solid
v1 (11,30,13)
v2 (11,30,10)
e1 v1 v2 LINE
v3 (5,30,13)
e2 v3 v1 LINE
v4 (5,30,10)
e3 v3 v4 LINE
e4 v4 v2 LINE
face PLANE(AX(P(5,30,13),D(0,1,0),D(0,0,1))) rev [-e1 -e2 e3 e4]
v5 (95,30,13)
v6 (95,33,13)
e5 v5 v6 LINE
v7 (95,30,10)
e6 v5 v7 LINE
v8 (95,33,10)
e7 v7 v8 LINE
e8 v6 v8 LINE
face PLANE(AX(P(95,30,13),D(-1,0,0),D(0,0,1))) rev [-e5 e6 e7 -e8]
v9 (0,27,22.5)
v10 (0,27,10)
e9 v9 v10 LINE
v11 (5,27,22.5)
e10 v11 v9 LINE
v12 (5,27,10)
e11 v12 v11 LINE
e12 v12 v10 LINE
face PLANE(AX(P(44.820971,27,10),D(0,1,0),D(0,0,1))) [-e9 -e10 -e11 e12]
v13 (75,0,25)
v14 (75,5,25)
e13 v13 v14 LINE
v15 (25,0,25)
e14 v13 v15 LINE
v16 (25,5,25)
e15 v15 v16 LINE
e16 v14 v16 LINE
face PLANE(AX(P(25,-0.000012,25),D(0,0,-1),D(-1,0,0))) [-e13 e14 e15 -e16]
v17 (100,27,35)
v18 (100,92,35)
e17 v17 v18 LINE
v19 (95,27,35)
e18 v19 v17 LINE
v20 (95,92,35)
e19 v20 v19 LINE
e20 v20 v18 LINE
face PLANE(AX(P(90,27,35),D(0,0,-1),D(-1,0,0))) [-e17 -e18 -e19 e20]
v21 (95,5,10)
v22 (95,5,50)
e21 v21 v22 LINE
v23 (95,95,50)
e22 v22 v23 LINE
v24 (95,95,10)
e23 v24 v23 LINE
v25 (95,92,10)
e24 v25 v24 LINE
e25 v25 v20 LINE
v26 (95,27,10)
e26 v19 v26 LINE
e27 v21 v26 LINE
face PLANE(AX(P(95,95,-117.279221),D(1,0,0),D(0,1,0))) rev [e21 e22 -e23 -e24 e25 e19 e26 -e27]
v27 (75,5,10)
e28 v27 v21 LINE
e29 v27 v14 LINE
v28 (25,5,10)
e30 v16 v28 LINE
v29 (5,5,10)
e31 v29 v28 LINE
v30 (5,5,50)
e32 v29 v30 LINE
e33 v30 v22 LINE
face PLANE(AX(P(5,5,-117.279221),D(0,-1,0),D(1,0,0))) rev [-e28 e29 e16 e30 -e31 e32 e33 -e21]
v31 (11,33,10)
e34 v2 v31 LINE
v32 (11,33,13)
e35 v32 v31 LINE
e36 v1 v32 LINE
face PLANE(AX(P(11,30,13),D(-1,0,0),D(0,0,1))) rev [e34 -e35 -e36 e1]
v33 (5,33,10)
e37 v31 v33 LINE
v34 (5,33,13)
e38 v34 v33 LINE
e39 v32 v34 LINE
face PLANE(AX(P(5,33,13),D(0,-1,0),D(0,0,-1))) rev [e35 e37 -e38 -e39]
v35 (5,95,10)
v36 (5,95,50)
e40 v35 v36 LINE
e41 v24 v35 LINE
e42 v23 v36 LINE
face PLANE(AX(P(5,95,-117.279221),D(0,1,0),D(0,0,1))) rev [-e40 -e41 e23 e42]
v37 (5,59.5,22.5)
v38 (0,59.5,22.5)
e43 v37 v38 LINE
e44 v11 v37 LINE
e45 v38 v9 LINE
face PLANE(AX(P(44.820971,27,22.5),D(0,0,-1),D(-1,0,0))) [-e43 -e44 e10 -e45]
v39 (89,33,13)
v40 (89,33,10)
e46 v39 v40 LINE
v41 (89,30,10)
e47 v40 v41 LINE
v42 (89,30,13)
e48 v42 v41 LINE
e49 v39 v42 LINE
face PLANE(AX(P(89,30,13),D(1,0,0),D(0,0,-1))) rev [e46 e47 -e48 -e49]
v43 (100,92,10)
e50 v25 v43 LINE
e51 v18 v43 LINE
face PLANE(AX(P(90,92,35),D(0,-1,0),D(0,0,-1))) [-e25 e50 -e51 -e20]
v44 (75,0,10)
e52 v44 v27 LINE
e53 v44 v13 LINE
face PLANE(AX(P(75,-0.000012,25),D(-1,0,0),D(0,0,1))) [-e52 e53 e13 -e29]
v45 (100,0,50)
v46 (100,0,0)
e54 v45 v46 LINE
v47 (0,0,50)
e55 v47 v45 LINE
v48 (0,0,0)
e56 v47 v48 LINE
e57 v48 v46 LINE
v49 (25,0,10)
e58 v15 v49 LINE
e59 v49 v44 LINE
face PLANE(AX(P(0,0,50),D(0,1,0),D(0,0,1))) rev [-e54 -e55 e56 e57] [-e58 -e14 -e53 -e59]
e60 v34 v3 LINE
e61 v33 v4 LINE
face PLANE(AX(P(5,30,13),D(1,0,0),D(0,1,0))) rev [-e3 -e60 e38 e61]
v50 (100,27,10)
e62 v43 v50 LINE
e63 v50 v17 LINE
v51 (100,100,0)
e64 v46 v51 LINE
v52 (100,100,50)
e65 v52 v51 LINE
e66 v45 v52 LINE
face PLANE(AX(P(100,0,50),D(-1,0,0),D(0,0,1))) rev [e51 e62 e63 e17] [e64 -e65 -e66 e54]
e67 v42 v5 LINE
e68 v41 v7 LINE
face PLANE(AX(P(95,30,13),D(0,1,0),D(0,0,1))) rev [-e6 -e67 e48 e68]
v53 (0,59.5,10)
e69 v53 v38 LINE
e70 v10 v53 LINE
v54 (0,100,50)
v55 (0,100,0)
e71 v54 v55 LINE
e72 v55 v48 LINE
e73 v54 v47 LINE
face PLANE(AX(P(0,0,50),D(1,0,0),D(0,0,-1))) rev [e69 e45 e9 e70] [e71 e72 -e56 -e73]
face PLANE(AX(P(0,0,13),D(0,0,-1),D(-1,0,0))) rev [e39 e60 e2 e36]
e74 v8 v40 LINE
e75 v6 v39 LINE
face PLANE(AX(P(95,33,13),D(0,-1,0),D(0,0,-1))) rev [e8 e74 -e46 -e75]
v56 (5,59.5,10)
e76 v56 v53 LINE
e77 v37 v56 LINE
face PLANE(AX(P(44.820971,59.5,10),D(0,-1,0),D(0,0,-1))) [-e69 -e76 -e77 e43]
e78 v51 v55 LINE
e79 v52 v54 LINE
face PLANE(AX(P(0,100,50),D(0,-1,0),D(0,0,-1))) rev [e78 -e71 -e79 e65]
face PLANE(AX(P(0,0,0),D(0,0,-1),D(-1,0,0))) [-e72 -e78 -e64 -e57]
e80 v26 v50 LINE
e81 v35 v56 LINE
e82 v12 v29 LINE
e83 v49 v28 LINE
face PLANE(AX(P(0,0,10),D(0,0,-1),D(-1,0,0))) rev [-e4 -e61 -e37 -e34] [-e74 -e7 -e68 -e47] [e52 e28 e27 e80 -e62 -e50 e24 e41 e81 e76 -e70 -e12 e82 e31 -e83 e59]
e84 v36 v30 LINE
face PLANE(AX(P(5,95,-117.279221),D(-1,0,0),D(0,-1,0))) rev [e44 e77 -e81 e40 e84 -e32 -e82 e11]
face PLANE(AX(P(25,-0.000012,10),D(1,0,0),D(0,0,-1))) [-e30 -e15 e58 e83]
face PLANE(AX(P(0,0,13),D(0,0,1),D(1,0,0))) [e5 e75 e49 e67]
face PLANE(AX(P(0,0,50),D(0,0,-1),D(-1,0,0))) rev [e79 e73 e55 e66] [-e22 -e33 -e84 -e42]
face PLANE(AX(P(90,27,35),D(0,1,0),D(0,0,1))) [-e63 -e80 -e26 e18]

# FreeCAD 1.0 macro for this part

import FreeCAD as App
import Part
import Sketcher
Q = App.Units.Quantity


def faces_at(feature, points):
    """Names of the faces that lie closest to the given points."""
    faces = feature.Shape.Faces
    near = lambda p: min(range(len(faces)), key=lambda i: faces[i].distToShape(Part.Vertex(*p))[0])
    return sorted({f"Face{near(p) + 1}" for p in points})


def add_polygon(sketch, points):
    """Adds a closed chain of lines whose ends are joined by coincident constraints."""
    first, n = sketch.GeometryCount, len(points)
    for a, b in zip(points, points[1:] + points[:1]):
        sketch.addGeometry(Part.LineSegment(App.Vector(*a, 0), App.Vector(*b, 0)), False)
    for i in range(n):
        sketch.addConstraint(Sketcher.Constraint("Coincident", first + i, 2, first + (i + 1) % n, 1))

doc = App.newDocument("Part")
body = doc.addObject("PartDesign::Body", "Body")

# Sketch on XY plane
sketch1 = body.newObject("Sketcher::SketchObject", "Sketch")
sketch1.AttachmentSupport = (doc.getObject("XY_Plane"), [""])
sketch1.MapMode = "FlatFace"
add_polygon(sketch1, [(0, 100), (0, 0), (100, 0), (100, 100)])  # lines 0-3
sketch1.addConstraint([
    Sketcher.Constraint("Vertical", 0),
    Sketcher.Constraint("Horizontal", 1),
    Sketcher.Constraint("Vertical", 2),
    Sketcher.Constraint("Horizontal", 3),
    Sketcher.Constraint("Coincident", 0, 2, -1, 1),
    Sketcher.Constraint("Equal", 3, 0),
    Sketcher.Constraint("DistanceX", 1, 1, 1, 2, Q("100 mm")),
])
pad1 = body.newObject("PartDesign::Pad", "Pad")
pad1.Profile = sketch1
pad1.Length = 50
doc.recompute()

thickness = body.newObject("PartDesign::Thickness", "Thickness")
thickness.Base = (pad1, faces_at(pad1, [(50, 50, 50)]))
thickness.Value = 10
thickness.Reversed = True
thickness.Join = "Intersection"

# Sketch on XZ plane
sketch2 = body.newObject("Sketcher::SketchObject", "Sketch001")
sketch2.AttachmentSupport = (doc.getObject("XZ_Plane"), [""])
sketch2.MapMode = "FlatFace"
add_polygon(sketch2, [(25, 25), (25, 10), (75, 10), (75, 25)])  # lines 0-3
sketch2.addConstraint([
    Sketcher.Constraint("Vertical", 0),
    Sketcher.Constraint("Horizontal", 1),
    Sketcher.Constraint("Vertical", 2),
    Sketcher.Constraint("Horizontal", 3),
    Sketcher.Constraint("DistanceX", 1, 1, 1, 2, Q("50 mm")),
    Sketcher.Constraint("DistanceY", 0, 2, 0, 1, Q("15 mm")),
    Sketcher.Constraint("DistanceX", -1, 1, 0, 2, Q("25 mm")),
    Sketcher.Constraint("DistanceY", -1, 1, 0, 2, Q("10 mm")),
])
pocket1 = body.newObject("PartDesign::Pocket", "Pocket")
pocket1.Profile = sketch2
pocket1.Type = "TwoLengths"
pocket1.Length = 151
pocket1.Length2 = 10
pocket1.Reversed = True

# Sketch on YZ plane
sketch3 = body.newObject("Sketcher::SketchObject", "Sketch002")
sketch3.AttachmentSupport = (doc.getObject("YZ_Plane"), [""])
sketch3.MapMode = "FlatFace"
sketch3.AttachmentOffset = App.Placement(App.Vector(0, 0, 100), App.Rotation())
add_polygon(sketch3, [(92, 10), (27, 10), (27, 35), (92, 35)])  # lines 0-3
sketch3.addConstraint([
    Sketcher.Constraint("Horizontal", 0),
    Sketcher.Constraint("Vertical", 1),
    Sketcher.Constraint("Horizontal", 2),
    Sketcher.Constraint("Vertical", 3),
    Sketcher.Constraint("DistanceX", 0, 2, 0, 1, Q("65 mm")),
    Sketcher.Constraint("DistanceY", 1, 1, 1, 2, Q("25 mm")),
    Sketcher.Constraint("DistanceX", -1, 1, 0, 2, Q("27 mm")),
    Sketcher.Constraint("DistanceY", -1, 1, 0, 2, Q("10 mm")),
])
pocket2 = body.newObject("PartDesign::Pocket", "Pocket001")
pocket2.Profile = sketch3
pocket2.Length = 10

# Sketch on YZ plane
sketch4 = body.newObject("Sketcher::SketchObject", "Sketch003")
sketch4.AttachmentSupport = (doc.getObject("YZ_Plane"), [""])
sketch4.MapMode = "FlatFace"
add_polygon(sketch4, [(59.5, 22.5), (27, 22.5), (27, 10), (59.5, 10)])  # lines 0-3
sketch4.addConstraint([
    Sketcher.Constraint("Horizontal", 0),
    Sketcher.Constraint("Vertical", 1),
    Sketcher.Constraint("Horizontal", 2),
    Sketcher.Constraint("Vertical", 3),
    Sketcher.Constraint("DistanceX", 0, 2, 0, 1, Q("32.5 mm")),
    Sketcher.Constraint("DistanceY", 1, 2, 1, 1, Q("12.5 mm")),
    Sketcher.Constraint("DistanceX", -1, 1, 0, 2, Q("27 mm")),
    Sketcher.Constraint("DistanceY", -1, 1, 1, 2, Q("10 mm")),
])
pocket3 = body.newObject("PartDesign::Pocket", "Pocket002")
pocket3.Profile = sketch4
pocket3.Length = 10
pocket3.Reversed = True

# Sketch on XY plane
sketch5 = body.newObject("Sketcher::SketchObject", "Sketch004")
sketch5.AttachmentSupport = (doc.getObject("XY_Plane"), [""])
sketch5.MapMode = "FlatFace"
sketch5.AttachmentOffset = App.Placement(App.Vector(0, 0, 10), App.Rotation())
add_polygon(sketch5, [(5, 95), (5, 5), (95, 5), (95, 95)])  # lines 0-3
sketch5.addConstraint([
    Sketcher.Constraint("Vertical", 0),
    Sketcher.Constraint("Horizontal", 1),
    Sketcher.Constraint("Vertical", 2),
    Sketcher.Constraint("Horizontal", 3),
    Sketcher.Constraint("Equal", 3, 0),
    Sketcher.Constraint("DistanceX", 1, 1, 1, 2, Q("90 mm")),
    Sketcher.Constraint("DistanceX", -1, 1, 0, 2, Q("5 mm")),
    Sketcher.Constraint("DistanceY", -1, 1, 0, 2, Q("5 mm")),
])
pocket4 = body.newObject("PartDesign::Pocket", "Pocket003")
pocket4.Profile = sketch5
pocket4.Length = 40
pocket4.Reversed = True

# Sketch on XY plane
sketch6 = body.newObject("Sketcher::SketchObject", "Sketch005")
sketch6.AttachmentSupport = (doc.getObject("XY_Plane"), [""])
sketch6.MapMode = "FlatFace"
sketch6.AttachmentOffset = App.Placement(App.Vector(0, 0, 10), App.Rotation())
add_polygon(sketch6, [(5, 33), (5, 30), (11, 30), (11, 33)])  # lines 0-3
add_polygon(sketch6, [(89, 33), (89, 30), (95, 30), (95, 33)])  # lines 4-7
sketch6.addConstraint([
    Sketcher.Constraint("Vertical", 0),
    Sketcher.Constraint("Horizontal", 1),
    Sketcher.Constraint("Vertical", 2),
    Sketcher.Constraint("Horizontal", 3),
    Sketcher.Constraint("Vertical", 4),
    Sketcher.Constraint("Horizontal", 5),
    Sketcher.Constraint("Vertical", 6),
    Sketcher.Constraint("Horizontal", 7),
    Sketcher.Constraint("Horizontal", 1, 2, 4, 2),
    Sketcher.Constraint("Horizontal", 3, 2, 6, 2),
    Sketcher.Constraint("Equal", 3, 5),
    Sketcher.Constraint("DistanceX", 1, 1, 1, 2, Q("6 mm")),
    Sketcher.Constraint("DistanceY", 0, 2, 0, 1, Q("3 mm")),
    Sketcher.Constraint("DistanceX", -1, 1, 0, 2, Q("5 mm")),
    Sketcher.Constraint("DistanceY", -1, 1, 0, 2, Q("30 mm")),
    Sketcher.Constraint("DistanceX", -1, 1, 4, 2, Q("89 mm")),
])
pad2 = body.newObject("PartDesign::Pad", "Pad001")
pad2.Profile = sketch6
pad2.Length = 3

doc.recompute()
